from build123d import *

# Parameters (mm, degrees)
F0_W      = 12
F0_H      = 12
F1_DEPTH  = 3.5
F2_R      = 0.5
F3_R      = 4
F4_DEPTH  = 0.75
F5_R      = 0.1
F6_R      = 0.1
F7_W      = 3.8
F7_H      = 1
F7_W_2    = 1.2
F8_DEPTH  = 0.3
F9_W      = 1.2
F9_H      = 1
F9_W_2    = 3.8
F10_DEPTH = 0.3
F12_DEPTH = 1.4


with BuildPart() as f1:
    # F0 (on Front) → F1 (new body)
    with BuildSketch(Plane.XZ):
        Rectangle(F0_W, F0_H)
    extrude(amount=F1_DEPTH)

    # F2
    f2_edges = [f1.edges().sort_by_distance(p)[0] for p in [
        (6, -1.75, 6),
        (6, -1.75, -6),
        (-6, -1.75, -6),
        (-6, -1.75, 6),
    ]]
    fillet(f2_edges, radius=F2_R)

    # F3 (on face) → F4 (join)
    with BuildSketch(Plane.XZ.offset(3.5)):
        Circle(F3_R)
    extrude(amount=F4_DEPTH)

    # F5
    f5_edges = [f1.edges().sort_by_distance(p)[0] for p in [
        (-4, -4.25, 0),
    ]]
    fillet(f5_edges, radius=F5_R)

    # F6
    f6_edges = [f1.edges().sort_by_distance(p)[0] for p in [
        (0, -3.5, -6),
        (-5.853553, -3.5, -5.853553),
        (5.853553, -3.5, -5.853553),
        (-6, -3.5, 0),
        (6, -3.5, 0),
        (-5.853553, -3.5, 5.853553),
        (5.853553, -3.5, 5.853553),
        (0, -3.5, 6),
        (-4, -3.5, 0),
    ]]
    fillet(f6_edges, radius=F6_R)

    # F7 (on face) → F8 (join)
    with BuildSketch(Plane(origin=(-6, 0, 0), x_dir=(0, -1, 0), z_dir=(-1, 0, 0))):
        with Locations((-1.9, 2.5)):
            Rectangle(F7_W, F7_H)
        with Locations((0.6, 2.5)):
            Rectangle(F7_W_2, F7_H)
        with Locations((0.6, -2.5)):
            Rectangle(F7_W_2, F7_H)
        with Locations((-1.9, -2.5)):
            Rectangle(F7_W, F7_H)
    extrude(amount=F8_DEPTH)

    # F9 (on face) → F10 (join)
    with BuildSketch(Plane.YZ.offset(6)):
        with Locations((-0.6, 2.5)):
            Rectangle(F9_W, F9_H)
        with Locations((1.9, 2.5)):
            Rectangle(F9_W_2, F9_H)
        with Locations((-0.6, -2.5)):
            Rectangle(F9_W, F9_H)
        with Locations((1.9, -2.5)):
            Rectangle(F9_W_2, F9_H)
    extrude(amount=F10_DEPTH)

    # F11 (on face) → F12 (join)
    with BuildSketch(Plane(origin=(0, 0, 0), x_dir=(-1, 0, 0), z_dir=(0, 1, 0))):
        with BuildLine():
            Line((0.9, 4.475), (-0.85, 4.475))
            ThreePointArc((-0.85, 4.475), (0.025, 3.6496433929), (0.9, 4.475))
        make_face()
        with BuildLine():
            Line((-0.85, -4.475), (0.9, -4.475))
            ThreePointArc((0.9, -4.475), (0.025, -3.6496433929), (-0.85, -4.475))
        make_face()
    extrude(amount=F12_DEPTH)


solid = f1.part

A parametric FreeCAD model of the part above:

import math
import FreeCAD as App
import Part
import Sketcher
from FreeCAD import Vector
Q = App.Units.Quantity


def edges_at(feature, points):
    """Names of the edges that pass closest to the given points."""
    edges = feature.Shape.Edges
    near = lambda p: min(range(len(edges)), key=lambda i: edges[i].distToShape(Part.Vertex(*p))[0])
    return sorted({f"Edge{near(p) + 1}" for p in points})

doc = App.newDocument("Part")
body = doc.addObject("PartDesign::Body", "Body")

# Sketch on XZ plane
sketch1 = doc.addObject("Sketcher::SketchObject", "Sketch")
body.addObject(sketch1)
sketch1.AttachmentSupport = (doc.XZ_Plane, [""])
sketch1.MapMode = "FlatFace"
sketch1.addGeometry([
    Part.LineSegment(Vector(-6, 6, 0), Vector(-6, -6, 0)),
    Part.LineSegment(Vector(-6, -6, 0), Vector(6, -6, 0)),
    Part.LineSegment(Vector(6, -6, 0), Vector(6, 6, 0)),
    Part.LineSegment(Vector(6, 6, 0), Vector(-6, 6, 0)),
], False)
sketch1.addConstraint([
    Sketcher.Constraint("Coincident", 0, 2, 1, 1),
    Sketcher.Constraint("Coincident", 1, 2, 2, 1),
    Sketcher.Constraint("Coincident", 2, 2, 3, 1),
    Sketcher.Constraint("Coincident", 3, 2, 0, 1),
    Sketcher.Constraint("Vertical", 0),
    Sketcher.Constraint("Horizontal", 1),
    Sketcher.Constraint("Vertical", 2),
    Sketcher.Constraint("Horizontal", 3),
    Sketcher.Constraint("Symmetric", 0, 2, 2, 2, -1, 1),
    Sketcher.Constraint("Equal", 3, 0),
    Sketcher.Constraint("DistanceX", 1, 1, 1, 2, Q("12 mm")),
])
pad1 = doc.addObject("PartDesign::Pad", "Pad")
body.addObject(pad1)
pad1.Profile = sketch1
pad1.Length = 3.5
doc.recompute()

fillet = doc.addObject("PartDesign::Fillet", "Fillet")
body.addObject(fillet)
fillet.Base = (pad1, edges_at(pad1, [
    (6, -1.75, 6),
    (6, -1.75, -6),
    (-6, -1.75, -6),
    (-6, -1.75, 6),
]))
fillet.Radius = 0.5

# Sketch on XZ plane
sketch2 = doc.addObject("Sketcher::SketchObject", "Sketch001")
body.addObject(sketch2)
sketch2.AttachmentSupport = (doc.XZ_Plane, [""])
sketch2.MapMode = "FlatFace"
sketch2.AttachmentOffset = App.Placement(Vector(0, 0, 3.5), App.Rotation())
sketch2.addGeometry(Part.Circle(Vector(0, 0, 0), Vector(0, 0, 1), 4), False)
sketch2.addConstraint([
    Sketcher.Constraint("Coincident", 0, 3, -1, 1),
    Sketcher.Constraint("Diameter", 0, Q("8 mm")),
])
pad2 = doc.addObject("PartDesign::Pad", "Pad001")
body.addObject(pad2)
pad2.Profile = sketch2
pad2.Length = 0.75
doc.recompute()

fillet2 = doc.addObject("PartDesign::Fillet", "Fillet001")
body.addObject(fillet2)
fillet2.Base = (pad2, edges_at(pad2, [(-4, -4.25, 0)]))
fillet2.Radius = 0.1
doc.recompute()

fillet3 = doc.addObject("PartDesign::Fillet", "Fillet002")
body.addObject(fillet3)
fillet3.Base = (fillet2, edges_at(fillet2, [
    (0, -3.5, -6),
    (-5.854, -3.5, -5.854),
    (5.854, -3.5, -5.854),
    (-6, -3.5, 0),
    (6, -3.5, 0),
    (-5.854, -3.5, 5.854),
    (5.854, -3.5, 5.854),
    (0, -3.5, 6),
    (-4, -3.5, 0),
]))
fillet3.Radius = 0.1

# Sketch on YZ plane
sketch3 = doc.addObject("Sketcher::SketchObject", "Sketch002")
body.addObject(sketch3)
sketch3.AttachmentSupport = (doc.YZ_Plane, [""])
sketch3.MapMode = "FlatFace"
sketch3.AttachmentOffset = App.Placement(Vector(0, 0, -6), App.Rotation())
sketch3.addGeometry([
    Part.LineSegment(Vector(3.8, 3, 0), Vector(3.8, 2, 0)),  # 0
    Part.LineSegment(Vector(3.8, 2, 0), Vector(-1.2, 2, 0)),  # 1
    Part.LineSegment(Vector(-1.2, 2, 0), Vector(-1.2, 3, 0)),  # 2
    Part.LineSegment(Vector(-1.2, 3, 0), Vector(3.8, 3, 0)),  # 3
    Part.LineSegment(Vector(-1.2, -3, 0), Vector(-1.2, -2, 0)),  # 4
    Part.LineSegment(Vector(-1.2, -2, 0), Vector(3.8, -2, 0)),  # 5
    Part.LineSegment(Vector(3.8, -2, 0), Vector(3.8, -3, 0)),  # 6
    Part.LineSegment(Vector(3.8, -3, 0), Vector(-1.2, -3, 0)),  # 7
], False)
sketch3.addConstraint([
    Sketcher.Constraint("Coincident", 0, 2, 1, 1),
    Sketcher.Constraint("Coincident", 1, 2, 2, 1),
    Sketcher.Constraint("Coincident", 2, 2, 3, 1),
    Sketcher.Constraint("Coincident", 3, 2, 0, 1),
    Sketcher.Constraint("Coincident", 4, 2, 5, 1),
    Sketcher.Constraint("Coincident", 5, 2, 6, 1),
    Sketcher.Constraint("Coincident", 6, 2, 7, 1),
    Sketcher.Constraint("Coincident", 7, 2, 4, 1),
    Sketcher.Constraint("Vertical", 0),
    Sketcher.Constraint("Horizontal", 1),
    Sketcher.Constraint("Vertical", 2),
    Sketcher.Constraint("Horizontal", 3),
    Sketcher.Constraint("Vertical", 4),
    Sketcher.Constraint("Horizontal", 5),
    Sketcher.Constraint("Vertical", 6),
    Sketcher.Constraint("Horizontal", 7),
    Sketcher.Constraint("Symmetric", 1, 2, 4, 2, -1),
    Sketcher.Constraint("Symmetric", 3, 2, 6, 2, -1),
    Sketcher.Constraint("DistanceX", 1, 2, 1, 1, Q("5 mm")),
    Sketcher.Constraint("DistanceY", 0, 2, 0, 1, Q("1 mm")),
    Sketcher.Constraint("DistanceY", -1, 1, 0, 2, Q("2 mm")),
    Sketcher.Constraint("DistanceX", -1, 1, 0, 2, Q("3.8 mm")),
])
pad3 = doc.addObject("PartDesign::Pad", "Pad002")
body.addObject(pad3)
pad3.Profile = sketch3
pad3.Length = 0.3
pad3.Reversed = True

# Sketch on YZ plane
sketch4 = doc.addObject("Sketcher::SketchObject", "Sketch003")
body.addObject(sketch4)
sketch4.AttachmentSupport = (doc.YZ_Plane, [""])
sketch4.MapMode = "FlatFace"
sketch4.AttachmentOffset = App.Placement(Vector(0, 0, 6), App.Rotation())
sketch4.addGeometry([
    Part.LineSegment(Vector(-1.2, 3, 0), Vector(-1.2, 2, 0)),  # 0
    Part.LineSegment(Vector(-1.2, 2, 0), Vector(3.8, 2, 0)),  # 1
    Part.LineSegment(Vector(3.8, 2, 0), Vector(3.8, 3, 0)),  # 2
    Part.LineSegment(Vector(3.8, 3, 0), Vector(-1.2, 3, 0)),  # 3
    Part.LineSegment(Vector(-1.2, -2, 0), Vector(-1.2, -3, 0)),  # 4
    Part.LineSegment(Vector(-1.2, -3, 0), Vector(3.8, -3, 0)),  # 5
    Part.LineSegment(Vector(3.8, -3, 0), Vector(3.8, -2, 0)),  # 6
    Part.LineSegment(Vector(3.8, -2, 0), Vector(-1.2, -2, 0)),  # 7
], False)
sketch4.addConstraint([
    Sketcher.Constraint("Coincident", 0, 2, 1, 1),
    Sketcher.Constraint("Coincident", 1, 2, 2, 1),
    Sketcher.Constraint("Coincident", 2, 2, 3, 1),
    Sketcher.Constraint("Coincident", 3, 2, 0, 1),
    Sketcher.Constraint("Coincident", 4, 2, 5, 1),
    Sketcher.Constraint("Coincident", 5, 2, 6, 1),
    Sketcher.Constraint("Coincident", 6, 2, 7, 1),
    Sketcher.Constraint("Coincident", 7, 2, 4, 1),
    Sketcher.Constraint("Vertical", 0),
    Sketcher.Constraint("Horizontal", 1),
    Sketcher.Constraint("Vertical", 2),
    Sketcher.Constraint("Horizontal", 3),
    Sketcher.Constraint("Vertical", 4),
    Sketcher.Constraint("Horizontal", 5),
    Sketcher.Constraint("Vertical", 6),
    Sketcher.Constraint("Horizontal", 7),
    Sketcher.Constraint("Symmetric", 3, 2, 4, 2, -1),
    Sketcher.Constraint("Symmetric", 1, 2, 6, 2, -1),
    Sketcher.Constraint("DistanceX", 1, 1, 1, 2, Q("5 mm")),
    Sketcher.Constraint("DistanceY", 0, 2, 0, 1, Q("1 mm")),
    Sketcher.Constraint("DistanceY", -1, 1, 0, 2, Q("2 mm")),
    Sketcher.Constraint("DistanceX", 0, 2, -1, 1, Q("1.2 mm")),
])
pad4 = doc.addObject("PartDesign::Pad", "Pad003")
body.addObject(pad4)
pad4.Profile = sketch4
pad4.Length = 0.3

# Sketch on XZ plane
sketch5 = doc.addObject("Sketcher::SketchObject", "Sketch004")
body.addObject(sketch5)
sketch5.AttachmentSupport = (doc.XZ_Plane, [""])
sketch5.MapMode = "FlatFace"
sketch5.addGeometry([
    Part.LineSegment(Vector(-0.9, 4.5, 0), Vector(0.8, 4.5, 0)),
    Part.ArcOfCircle(Part.Circle(Vector(0, 4.5, 0), Vector(0, 0, 1), 0.9), math.radians(-177), math.radians(-3)),
    Part.LineSegment(Vector(0.8, -4.5, 0), Vector(-0.9, -4.5, 0)),
    Part.ArcOfCircle(Part.Circle(Vector(0, -4.5, 0), Vector(0, 0, 1), 0.9), math.radians(3), math.radians(177)),
], False)
sketch5.addConstraint([
    Sketcher.Constraint("Coincident", 0, 1, 1, 1),
    Sketcher.Constraint("Coincident", 1, 2, 0, 2),
    Sketcher.Constraint("Coincident", 2, 1, 3, 1),
    Sketcher.Constraint("Coincident", 3, 2, 2, 2),
    Sketcher.Constraint("Horizontal", 0),
    Sketcher.Constraint("Horizontal", 2),
    Sketcher.Constraint("Equal", 1, 3),
    Sketcher.Constraint("Symmetric", 1, 3, 3, 3, -1),
    Sketcher.Constraint("Vertical", 1, 2, 2, 1),
    Sketcher.Constraint("DistanceX", 0, 1, 0, 2, Q("1.75 mm")),
    Sketcher.Constraint("DistanceX", 0, 1, -1, 1, Q("0.9 mm")),
    Sketcher.Constraint("DistanceY", 2, 1, 1, 2, Q("8.95 mm")),
    Sketcher.Constraint("Radius", 1, Q("0.876493 mm")),
])
pad5 = doc.addObject("PartDesign::Pad", "Pad004")
body.addObject(pad5)
pad5.Profile = sketch5
pad5.Length = 1.4
pad5.Reversed = True

doc.recompute()
